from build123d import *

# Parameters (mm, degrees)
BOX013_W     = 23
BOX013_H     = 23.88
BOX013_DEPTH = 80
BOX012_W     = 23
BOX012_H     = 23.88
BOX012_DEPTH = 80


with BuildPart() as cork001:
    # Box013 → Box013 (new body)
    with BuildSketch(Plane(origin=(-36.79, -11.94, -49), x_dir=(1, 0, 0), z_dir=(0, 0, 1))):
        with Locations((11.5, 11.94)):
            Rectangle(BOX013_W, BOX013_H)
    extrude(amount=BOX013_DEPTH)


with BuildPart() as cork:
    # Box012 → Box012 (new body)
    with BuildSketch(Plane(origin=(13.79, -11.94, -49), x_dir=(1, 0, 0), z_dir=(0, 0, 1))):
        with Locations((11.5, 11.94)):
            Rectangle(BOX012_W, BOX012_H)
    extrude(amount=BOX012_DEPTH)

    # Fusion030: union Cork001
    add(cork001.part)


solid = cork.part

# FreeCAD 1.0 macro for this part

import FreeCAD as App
import Part
import Sketcher
from FreeCAD import Vector


def add_polygon(sketch, points):
    """Adds a closed chain of lines whose ends are joined by coincident constraints."""
    first, n = sketch.GeometryCount, len(points)
    for a, b in zip(points, points[1:] + points[:1]):
        sketch.addGeometry(Part.LineSegment(App.Vector(*a, 0), App.Vector(*b, 0)), False)
    for i in range(n):
        sketch.addConstraint(Sketcher.Constraint("Coincident", first + i, 2, first + (i + 1) % n, 1))

doc = App.newDocument("Part")
body = doc.addObject("PartDesign::Body", "Body")

# Sketch on XY plane
sketch1 = body.newObject("Sketcher::SketchObject", "Sketch")
sketch1.AttachmentSupport = (doc.getObject("XY_Plane"), [""])
sketch1.MapMode = "FlatFace"
sketch1.AttachmentOffset = App.Placement(Vector(0, 0, -49), App.Rotation())
add_polygon(sketch1, [(-37, 12), (-37, -12), (-14, -12), (-14, 12)])  # lines 0-3
sketch1.addConstraint(Sketcher.Constraint("Vertical", 0))
sketch1.addConstraint(Sketcher.Constraint("Horizontal", 1))
sketch1.addConstraint(Sketcher.Constraint("Vertical", 2))
sketch1.addConstraint(Sketcher.Constraint("Horizontal", 3))
sketch1.addConstraint(Sketcher.Constraint("DistanceX", 1, 1, 1, 2, 23.0))
sketch1.addConstraint(Sketcher.Constraint("DistanceY", 0, 2, 0, 1, 23.88))
sketch1.addConstraint(Sketcher.Constraint("DistanceX", 0, 2, -1, 1, 36.79))
sketch1.addConstraint(Sketcher.Constraint("DistanceY", 0, 2, -1, 1, 11.94))
pad1 = body.newObject("PartDesign::Pad", "Pad")
pad1.Profile = sketch1
pad1.Length = 80
body2 = doc.addObject("PartDesign::Body", "Body001")
body2.AllowCompound = True

# Sketch on XY plane
sketch2 = body2.newObject("Sketcher::SketchObject", "Sketch001")
sketch2.AttachmentSupport = (doc.getObject("XY_Plane001"), [""])
sketch2.MapMode = "FlatFace"
sketch2.AttachmentOffset = App.Placement(Vector(0, 0, -49), App.Rotation())
add_polygon(sketch2, [(14, 12), (14, -12), (37, -12), (37, 12)])  # lines 0-3
sketch2.addConstraint(Sketcher.Constraint("Vertical", 0))
sketch2.addConstraint(Sketcher.Constraint("Horizontal", 1))
sketch2.addConstraint(Sketcher.Constraint("Vertical", 2))
sketch2.addConstraint(Sketcher.Constraint("Horizontal", 3))
sketch2.addConstraint(Sketcher.Constraint("DistanceX", 1, 1, 1, 2, 23.0))
sketch2.addConstraint(Sketcher.Constraint("DistanceY", 0, 2, 0, 1, 23.88))
sketch2.addConstraint(Sketcher.Constraint("DistanceX", -1, 1, 0, 2, 13.79))
sketch2.addConstraint(Sketcher.Constraint("DistanceY", 0, 2, -1, 1, 11.94))
pad2 = body2.newObject("PartDesign::Pad", "Pad001")
pad2.Profile = sketch2
pad2.Length = 80
doc.recompute()

boolean = body2.newObject("PartDesign::Boolean", "Boolean")
boolean.Type = "Fuse"
boolean.addObjects([body])

doc.recompute()
